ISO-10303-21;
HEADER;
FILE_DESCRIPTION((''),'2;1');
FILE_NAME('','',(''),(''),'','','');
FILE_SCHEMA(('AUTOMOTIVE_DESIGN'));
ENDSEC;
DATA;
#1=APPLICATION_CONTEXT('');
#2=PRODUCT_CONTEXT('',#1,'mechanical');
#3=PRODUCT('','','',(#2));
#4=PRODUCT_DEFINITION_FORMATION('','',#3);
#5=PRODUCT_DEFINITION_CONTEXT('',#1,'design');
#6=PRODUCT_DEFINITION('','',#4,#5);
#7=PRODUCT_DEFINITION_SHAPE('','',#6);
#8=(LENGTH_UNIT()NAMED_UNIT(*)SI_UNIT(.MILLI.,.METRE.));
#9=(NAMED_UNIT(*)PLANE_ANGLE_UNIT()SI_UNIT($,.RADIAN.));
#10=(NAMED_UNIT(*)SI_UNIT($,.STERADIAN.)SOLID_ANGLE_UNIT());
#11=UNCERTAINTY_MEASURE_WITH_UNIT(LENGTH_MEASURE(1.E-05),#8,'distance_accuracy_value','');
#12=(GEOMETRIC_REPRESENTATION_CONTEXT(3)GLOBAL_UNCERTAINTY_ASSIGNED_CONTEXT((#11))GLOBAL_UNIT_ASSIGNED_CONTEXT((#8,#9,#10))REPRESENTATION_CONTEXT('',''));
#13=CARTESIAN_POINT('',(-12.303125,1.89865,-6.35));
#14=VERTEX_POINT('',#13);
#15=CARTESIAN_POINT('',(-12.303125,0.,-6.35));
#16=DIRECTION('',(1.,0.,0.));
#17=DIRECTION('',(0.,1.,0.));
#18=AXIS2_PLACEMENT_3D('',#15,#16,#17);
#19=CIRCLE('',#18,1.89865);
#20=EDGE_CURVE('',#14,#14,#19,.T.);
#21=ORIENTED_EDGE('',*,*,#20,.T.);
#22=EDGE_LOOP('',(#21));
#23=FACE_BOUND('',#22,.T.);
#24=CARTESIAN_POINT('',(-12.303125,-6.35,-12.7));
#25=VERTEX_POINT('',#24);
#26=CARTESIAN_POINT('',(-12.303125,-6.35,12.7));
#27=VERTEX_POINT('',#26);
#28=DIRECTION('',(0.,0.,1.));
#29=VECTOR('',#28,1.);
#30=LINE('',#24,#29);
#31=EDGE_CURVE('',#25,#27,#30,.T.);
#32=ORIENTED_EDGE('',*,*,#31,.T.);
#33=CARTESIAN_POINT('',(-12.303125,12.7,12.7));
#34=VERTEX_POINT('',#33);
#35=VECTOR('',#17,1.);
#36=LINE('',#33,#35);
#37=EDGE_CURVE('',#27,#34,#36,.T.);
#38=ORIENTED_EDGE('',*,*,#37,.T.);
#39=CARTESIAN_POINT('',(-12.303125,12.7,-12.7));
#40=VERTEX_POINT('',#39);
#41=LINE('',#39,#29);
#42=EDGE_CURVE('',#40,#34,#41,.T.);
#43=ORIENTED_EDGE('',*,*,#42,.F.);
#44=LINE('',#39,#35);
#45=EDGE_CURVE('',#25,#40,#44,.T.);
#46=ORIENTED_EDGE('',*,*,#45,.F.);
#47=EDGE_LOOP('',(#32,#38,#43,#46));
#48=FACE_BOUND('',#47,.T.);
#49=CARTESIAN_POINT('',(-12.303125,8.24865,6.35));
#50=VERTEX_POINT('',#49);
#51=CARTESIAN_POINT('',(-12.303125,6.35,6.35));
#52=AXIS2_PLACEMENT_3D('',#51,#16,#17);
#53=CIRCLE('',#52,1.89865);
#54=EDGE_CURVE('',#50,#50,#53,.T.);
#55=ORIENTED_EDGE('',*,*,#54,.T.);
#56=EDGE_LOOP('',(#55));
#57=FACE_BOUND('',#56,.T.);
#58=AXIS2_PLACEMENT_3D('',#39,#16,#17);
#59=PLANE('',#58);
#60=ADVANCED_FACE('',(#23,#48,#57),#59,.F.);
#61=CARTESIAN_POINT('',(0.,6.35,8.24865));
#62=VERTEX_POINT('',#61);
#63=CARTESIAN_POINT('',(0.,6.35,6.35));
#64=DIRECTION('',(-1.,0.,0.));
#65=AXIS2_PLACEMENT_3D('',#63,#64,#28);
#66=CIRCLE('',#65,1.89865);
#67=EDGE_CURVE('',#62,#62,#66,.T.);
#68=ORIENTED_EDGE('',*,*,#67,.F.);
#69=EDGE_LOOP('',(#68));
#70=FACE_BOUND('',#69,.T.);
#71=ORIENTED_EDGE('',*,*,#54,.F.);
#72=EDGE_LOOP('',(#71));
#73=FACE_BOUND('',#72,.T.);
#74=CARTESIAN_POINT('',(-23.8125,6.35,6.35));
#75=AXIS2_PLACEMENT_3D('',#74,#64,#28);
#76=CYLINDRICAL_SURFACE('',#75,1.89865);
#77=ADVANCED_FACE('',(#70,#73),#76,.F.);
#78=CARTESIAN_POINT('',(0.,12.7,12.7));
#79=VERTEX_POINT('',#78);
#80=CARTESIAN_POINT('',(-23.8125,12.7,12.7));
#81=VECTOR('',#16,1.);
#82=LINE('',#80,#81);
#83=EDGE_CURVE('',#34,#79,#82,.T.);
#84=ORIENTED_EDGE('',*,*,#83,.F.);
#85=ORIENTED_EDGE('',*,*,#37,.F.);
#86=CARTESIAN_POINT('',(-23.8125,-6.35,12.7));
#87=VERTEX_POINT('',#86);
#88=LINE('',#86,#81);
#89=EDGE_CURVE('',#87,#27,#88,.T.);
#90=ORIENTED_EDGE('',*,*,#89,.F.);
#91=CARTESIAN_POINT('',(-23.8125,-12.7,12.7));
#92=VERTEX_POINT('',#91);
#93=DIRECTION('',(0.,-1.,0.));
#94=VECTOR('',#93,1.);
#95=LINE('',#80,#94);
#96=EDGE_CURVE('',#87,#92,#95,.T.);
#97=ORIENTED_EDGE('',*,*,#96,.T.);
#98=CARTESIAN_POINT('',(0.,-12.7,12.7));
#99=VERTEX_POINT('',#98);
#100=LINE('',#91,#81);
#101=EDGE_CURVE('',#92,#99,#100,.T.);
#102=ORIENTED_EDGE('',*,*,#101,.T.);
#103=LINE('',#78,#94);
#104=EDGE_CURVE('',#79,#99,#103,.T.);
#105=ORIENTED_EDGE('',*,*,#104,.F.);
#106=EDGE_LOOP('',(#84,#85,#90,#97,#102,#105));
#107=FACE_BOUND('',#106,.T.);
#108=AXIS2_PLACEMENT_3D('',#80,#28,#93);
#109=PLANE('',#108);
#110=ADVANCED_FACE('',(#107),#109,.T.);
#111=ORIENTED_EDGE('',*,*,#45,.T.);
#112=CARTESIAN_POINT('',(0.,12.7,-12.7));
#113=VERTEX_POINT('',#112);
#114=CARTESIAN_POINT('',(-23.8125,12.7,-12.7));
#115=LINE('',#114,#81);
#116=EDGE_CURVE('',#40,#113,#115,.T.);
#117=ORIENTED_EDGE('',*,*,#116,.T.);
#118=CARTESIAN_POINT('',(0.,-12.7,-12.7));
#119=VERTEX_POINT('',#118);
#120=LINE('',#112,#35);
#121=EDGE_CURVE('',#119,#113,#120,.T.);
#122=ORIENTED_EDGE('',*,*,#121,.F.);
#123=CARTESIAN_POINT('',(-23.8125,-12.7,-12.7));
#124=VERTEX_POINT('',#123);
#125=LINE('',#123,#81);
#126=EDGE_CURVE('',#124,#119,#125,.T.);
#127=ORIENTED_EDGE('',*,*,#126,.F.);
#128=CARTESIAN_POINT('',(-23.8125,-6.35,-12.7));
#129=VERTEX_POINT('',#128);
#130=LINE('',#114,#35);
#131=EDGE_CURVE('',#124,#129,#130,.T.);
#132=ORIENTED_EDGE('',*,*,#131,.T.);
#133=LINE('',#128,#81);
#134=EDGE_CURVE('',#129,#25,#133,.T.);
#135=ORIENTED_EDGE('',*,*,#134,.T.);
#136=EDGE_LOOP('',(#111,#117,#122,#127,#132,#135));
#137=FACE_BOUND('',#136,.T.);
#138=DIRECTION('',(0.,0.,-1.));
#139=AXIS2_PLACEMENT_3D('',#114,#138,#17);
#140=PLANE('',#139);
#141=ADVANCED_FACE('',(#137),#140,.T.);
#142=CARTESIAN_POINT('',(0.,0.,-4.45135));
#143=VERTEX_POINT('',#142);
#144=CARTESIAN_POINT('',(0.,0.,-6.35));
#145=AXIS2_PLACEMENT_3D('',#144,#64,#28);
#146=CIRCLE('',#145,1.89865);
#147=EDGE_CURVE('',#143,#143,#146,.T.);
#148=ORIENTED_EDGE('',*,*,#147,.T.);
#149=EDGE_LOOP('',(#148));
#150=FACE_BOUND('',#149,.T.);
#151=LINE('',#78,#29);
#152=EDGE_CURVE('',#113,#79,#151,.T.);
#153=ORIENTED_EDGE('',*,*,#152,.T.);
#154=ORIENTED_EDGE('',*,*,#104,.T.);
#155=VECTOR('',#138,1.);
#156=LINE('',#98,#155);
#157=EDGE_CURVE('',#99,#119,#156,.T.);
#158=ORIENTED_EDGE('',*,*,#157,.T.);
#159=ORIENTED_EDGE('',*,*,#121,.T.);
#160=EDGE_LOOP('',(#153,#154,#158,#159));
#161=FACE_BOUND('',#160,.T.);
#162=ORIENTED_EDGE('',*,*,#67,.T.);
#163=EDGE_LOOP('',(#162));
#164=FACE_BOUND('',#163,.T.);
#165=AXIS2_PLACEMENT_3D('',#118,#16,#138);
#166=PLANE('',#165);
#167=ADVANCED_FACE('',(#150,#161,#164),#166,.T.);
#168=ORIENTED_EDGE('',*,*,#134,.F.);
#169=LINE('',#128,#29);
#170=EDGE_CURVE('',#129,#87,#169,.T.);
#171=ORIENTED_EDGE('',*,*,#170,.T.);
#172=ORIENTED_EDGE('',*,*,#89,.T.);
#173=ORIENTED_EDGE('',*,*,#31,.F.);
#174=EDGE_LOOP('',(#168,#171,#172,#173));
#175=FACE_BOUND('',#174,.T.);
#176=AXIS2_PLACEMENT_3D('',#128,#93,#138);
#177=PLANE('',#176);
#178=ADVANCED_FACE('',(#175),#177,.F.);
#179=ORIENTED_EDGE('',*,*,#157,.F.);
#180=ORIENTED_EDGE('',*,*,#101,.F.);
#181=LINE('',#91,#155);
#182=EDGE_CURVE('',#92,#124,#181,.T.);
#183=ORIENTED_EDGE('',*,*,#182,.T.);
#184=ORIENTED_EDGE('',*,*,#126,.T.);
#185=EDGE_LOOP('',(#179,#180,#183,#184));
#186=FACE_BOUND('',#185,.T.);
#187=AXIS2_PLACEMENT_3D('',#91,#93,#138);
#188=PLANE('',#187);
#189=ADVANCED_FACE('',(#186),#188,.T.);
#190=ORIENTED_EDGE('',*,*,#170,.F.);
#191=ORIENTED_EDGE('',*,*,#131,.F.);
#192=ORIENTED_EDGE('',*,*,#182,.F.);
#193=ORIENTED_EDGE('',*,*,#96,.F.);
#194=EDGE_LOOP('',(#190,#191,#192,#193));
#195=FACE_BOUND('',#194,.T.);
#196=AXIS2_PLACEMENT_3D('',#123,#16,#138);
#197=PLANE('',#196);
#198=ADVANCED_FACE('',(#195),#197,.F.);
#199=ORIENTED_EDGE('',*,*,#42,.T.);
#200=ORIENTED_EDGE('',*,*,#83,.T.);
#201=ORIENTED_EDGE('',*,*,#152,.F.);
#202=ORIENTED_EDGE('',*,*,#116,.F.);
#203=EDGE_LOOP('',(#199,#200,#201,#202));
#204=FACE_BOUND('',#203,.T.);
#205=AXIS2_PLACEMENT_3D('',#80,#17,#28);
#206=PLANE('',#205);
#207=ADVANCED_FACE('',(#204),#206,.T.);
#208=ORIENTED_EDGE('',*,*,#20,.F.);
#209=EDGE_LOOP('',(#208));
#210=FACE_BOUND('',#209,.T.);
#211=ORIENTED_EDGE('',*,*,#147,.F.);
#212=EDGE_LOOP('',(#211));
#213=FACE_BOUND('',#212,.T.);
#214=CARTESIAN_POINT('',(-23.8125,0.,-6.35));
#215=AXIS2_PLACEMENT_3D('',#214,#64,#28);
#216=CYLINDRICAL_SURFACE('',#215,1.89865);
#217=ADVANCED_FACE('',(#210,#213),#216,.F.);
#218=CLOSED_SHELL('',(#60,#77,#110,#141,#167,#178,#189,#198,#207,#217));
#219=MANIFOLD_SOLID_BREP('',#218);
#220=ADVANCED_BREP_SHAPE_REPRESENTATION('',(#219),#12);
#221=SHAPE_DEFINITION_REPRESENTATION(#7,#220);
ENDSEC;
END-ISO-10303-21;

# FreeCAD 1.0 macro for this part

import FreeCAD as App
import Part
import Sketcher
Q = App.Units.Quantity


def add_polygon(sketch, points):
    """Adds a closed chain of lines whose ends are joined by coincident constraints."""
    first, n = sketch.GeometryCount, len(points)
    for a, b in zip(points, points[1:] + points[:1]):
        sketch.addGeometry(Part.LineSegment(App.Vector(*a, 0), App.Vector(*b, 0)), False)
    for i in range(n):
        sketch.addConstraint(Sketcher.Constraint("Coincident", first + i, 2, first + (i + 1) % n, 1))

doc = App.newDocument("Part")
params = doc.addObject("Spreadsheet::Sheet", "Params")
for row, (alias, value) in enumerate([
    ("sketch1_width", "1 in"),
    ("pad1_length", "0.9375 in"),
    ("sketch2_height", "0.75 in"),
    ("sketch2_width", "0.453125 in"),
    ("hole_diameter", "0.1495 in"),
], start=1):
    params.set(f"A{row}", alias)
    params.set(f"B{row}", "=" + value)
    params.setAlias(f"B{row}", alias)

body = doc.addObject("PartDesign::Body", "Body")

sketch1 = doc.addObject("Sketcher::SketchObject", "Sketch")
body.addObject(sketch1)
sketch1.AttachmentSupport = (doc.YZ_Plane, [""])
sketch1.MapMode = "FlatFace"
add_polygon(sketch1, [(13, 13), (-13, 13), (-13, -13), (13, -13)])
sketch1.addConstraint([
    Sketcher.Constraint("Horizontal", 0),
    Sketcher.Constraint("Vertical", 1),
    Sketcher.Constraint("Horizontal", 2),
    Sketcher.Constraint("Vertical", 3),
    Sketcher.Constraint("Symmetric", 0, 2, 2, 2, -1, 1),
    Sketcher.Constraint("Equal", 2, 1),
    Sketcher.Constraint("DistanceX", 0, 2, 0, 1, Q("1 in")),
])
sketch1.setExpression("Constraints[10]", "Params.sketch1_width")
pad1 = doc.addObject("PartDesign::Pad", "Pad")
body.addObject(pad1)
pad1.Profile = sketch1
pad1.setExpression("Length", "Params.pad1_length")
pad1.Reversed = True

sketch2 = doc.addObject("Sketcher::SketchObject", "Sketch001")
body.addObject(sketch2)
sketch2.AttachmentSupport = (doc.XY_Plane, [""])
sketch2.MapMode = "FlatFace"
sketch2.AttachmentOffset = App.Placement(App.Vector(0, 0, 0.5 * 25.4), App.Rotation())
add_polygon(sketch2, [(-24, 13), (-24, -6), (-12, -6), (-12, 13)])
sketch2.addConstraint([
    Sketcher.Constraint("Vertical", 0),
    Sketcher.Constraint("Horizontal", 1),
    Sketcher.Constraint("Vertical", 2),
    Sketcher.Constraint("Horizontal", 3),
    Sketcher.Constraint("DistanceY", 0, 2, 0, 1, Q("0.75 in")),
    Sketcher.Constraint("DistanceY", -1, 1, 2, 2, Q("0.5 in")),
    Sketcher.Constraint("DistanceX", 1, 1, 1, 2, Q("0.453125 in")),
    Sketcher.Constraint("DistanceX", 0, 2, -1, 1, Q("0.9375 in")),
])
sketch2.setExpression("Constraints[8]", "Params.sketch2_height")
sketch2.setExpression("Constraints[10]", "Params.sketch2_width")
pocket1 = doc.addObject("PartDesign::Pocket", "Pocket")
body.addObject(pocket1)
pocket1.Profile = sketch2
pocket1.Type = "ThroughAll"

sketch3 = doc.addObject("Sketcher::SketchObject", "Sketch002")
body.addObject(sketch3)
sketch3.AttachmentSupport = (doc.YZ_Plane, [""])
sketch3.MapMode = "FlatFace"
sketch3.AttachmentOffset = App.Placement(App.Vector(0, 0, -0.9375 * 25.4), App.Rotation())
sketch3.addGeometry([
    Part.Circle(App.Vector(0, -6.3, 0), App.Vector(0, 0, 1), 1.9),
    Part.Circle(App.Vector(6.3, 6.3, 0), App.Vector(0, 0, 1), 1.9),
], False)
sketch3.addConstraint([
    Sketcher.Constraint("Equal", 0, 1),
    Sketcher.Constraint("PointOnObject", 0, 3, -2),
    Sketcher.Constraint("Diameter", 0, Q("0.1495 in")),
    Sketcher.Constraint("DistanceY", 0, 3, 1, 3, Q("0.5 in")),
    Sketcher.Constraint("DistanceY", 0, 3, -1, 1, Q("0.25 in")),
    Sketcher.Constraint("DistanceX", -1, 1, 1, 3, Q("0.25 in")),
])
doc.recompute()
hole = doc.addObject("PartDesign::Hole", "Hole")
body.addObject(hole)
hole.Profile = sketch3
hole.ThreadType = "None"
hole.setExpression("Diameter", "Params.hole_diameter")
hole.DepthType = "ThroughAll"
hole.Reversed = True

doc.recompute()
